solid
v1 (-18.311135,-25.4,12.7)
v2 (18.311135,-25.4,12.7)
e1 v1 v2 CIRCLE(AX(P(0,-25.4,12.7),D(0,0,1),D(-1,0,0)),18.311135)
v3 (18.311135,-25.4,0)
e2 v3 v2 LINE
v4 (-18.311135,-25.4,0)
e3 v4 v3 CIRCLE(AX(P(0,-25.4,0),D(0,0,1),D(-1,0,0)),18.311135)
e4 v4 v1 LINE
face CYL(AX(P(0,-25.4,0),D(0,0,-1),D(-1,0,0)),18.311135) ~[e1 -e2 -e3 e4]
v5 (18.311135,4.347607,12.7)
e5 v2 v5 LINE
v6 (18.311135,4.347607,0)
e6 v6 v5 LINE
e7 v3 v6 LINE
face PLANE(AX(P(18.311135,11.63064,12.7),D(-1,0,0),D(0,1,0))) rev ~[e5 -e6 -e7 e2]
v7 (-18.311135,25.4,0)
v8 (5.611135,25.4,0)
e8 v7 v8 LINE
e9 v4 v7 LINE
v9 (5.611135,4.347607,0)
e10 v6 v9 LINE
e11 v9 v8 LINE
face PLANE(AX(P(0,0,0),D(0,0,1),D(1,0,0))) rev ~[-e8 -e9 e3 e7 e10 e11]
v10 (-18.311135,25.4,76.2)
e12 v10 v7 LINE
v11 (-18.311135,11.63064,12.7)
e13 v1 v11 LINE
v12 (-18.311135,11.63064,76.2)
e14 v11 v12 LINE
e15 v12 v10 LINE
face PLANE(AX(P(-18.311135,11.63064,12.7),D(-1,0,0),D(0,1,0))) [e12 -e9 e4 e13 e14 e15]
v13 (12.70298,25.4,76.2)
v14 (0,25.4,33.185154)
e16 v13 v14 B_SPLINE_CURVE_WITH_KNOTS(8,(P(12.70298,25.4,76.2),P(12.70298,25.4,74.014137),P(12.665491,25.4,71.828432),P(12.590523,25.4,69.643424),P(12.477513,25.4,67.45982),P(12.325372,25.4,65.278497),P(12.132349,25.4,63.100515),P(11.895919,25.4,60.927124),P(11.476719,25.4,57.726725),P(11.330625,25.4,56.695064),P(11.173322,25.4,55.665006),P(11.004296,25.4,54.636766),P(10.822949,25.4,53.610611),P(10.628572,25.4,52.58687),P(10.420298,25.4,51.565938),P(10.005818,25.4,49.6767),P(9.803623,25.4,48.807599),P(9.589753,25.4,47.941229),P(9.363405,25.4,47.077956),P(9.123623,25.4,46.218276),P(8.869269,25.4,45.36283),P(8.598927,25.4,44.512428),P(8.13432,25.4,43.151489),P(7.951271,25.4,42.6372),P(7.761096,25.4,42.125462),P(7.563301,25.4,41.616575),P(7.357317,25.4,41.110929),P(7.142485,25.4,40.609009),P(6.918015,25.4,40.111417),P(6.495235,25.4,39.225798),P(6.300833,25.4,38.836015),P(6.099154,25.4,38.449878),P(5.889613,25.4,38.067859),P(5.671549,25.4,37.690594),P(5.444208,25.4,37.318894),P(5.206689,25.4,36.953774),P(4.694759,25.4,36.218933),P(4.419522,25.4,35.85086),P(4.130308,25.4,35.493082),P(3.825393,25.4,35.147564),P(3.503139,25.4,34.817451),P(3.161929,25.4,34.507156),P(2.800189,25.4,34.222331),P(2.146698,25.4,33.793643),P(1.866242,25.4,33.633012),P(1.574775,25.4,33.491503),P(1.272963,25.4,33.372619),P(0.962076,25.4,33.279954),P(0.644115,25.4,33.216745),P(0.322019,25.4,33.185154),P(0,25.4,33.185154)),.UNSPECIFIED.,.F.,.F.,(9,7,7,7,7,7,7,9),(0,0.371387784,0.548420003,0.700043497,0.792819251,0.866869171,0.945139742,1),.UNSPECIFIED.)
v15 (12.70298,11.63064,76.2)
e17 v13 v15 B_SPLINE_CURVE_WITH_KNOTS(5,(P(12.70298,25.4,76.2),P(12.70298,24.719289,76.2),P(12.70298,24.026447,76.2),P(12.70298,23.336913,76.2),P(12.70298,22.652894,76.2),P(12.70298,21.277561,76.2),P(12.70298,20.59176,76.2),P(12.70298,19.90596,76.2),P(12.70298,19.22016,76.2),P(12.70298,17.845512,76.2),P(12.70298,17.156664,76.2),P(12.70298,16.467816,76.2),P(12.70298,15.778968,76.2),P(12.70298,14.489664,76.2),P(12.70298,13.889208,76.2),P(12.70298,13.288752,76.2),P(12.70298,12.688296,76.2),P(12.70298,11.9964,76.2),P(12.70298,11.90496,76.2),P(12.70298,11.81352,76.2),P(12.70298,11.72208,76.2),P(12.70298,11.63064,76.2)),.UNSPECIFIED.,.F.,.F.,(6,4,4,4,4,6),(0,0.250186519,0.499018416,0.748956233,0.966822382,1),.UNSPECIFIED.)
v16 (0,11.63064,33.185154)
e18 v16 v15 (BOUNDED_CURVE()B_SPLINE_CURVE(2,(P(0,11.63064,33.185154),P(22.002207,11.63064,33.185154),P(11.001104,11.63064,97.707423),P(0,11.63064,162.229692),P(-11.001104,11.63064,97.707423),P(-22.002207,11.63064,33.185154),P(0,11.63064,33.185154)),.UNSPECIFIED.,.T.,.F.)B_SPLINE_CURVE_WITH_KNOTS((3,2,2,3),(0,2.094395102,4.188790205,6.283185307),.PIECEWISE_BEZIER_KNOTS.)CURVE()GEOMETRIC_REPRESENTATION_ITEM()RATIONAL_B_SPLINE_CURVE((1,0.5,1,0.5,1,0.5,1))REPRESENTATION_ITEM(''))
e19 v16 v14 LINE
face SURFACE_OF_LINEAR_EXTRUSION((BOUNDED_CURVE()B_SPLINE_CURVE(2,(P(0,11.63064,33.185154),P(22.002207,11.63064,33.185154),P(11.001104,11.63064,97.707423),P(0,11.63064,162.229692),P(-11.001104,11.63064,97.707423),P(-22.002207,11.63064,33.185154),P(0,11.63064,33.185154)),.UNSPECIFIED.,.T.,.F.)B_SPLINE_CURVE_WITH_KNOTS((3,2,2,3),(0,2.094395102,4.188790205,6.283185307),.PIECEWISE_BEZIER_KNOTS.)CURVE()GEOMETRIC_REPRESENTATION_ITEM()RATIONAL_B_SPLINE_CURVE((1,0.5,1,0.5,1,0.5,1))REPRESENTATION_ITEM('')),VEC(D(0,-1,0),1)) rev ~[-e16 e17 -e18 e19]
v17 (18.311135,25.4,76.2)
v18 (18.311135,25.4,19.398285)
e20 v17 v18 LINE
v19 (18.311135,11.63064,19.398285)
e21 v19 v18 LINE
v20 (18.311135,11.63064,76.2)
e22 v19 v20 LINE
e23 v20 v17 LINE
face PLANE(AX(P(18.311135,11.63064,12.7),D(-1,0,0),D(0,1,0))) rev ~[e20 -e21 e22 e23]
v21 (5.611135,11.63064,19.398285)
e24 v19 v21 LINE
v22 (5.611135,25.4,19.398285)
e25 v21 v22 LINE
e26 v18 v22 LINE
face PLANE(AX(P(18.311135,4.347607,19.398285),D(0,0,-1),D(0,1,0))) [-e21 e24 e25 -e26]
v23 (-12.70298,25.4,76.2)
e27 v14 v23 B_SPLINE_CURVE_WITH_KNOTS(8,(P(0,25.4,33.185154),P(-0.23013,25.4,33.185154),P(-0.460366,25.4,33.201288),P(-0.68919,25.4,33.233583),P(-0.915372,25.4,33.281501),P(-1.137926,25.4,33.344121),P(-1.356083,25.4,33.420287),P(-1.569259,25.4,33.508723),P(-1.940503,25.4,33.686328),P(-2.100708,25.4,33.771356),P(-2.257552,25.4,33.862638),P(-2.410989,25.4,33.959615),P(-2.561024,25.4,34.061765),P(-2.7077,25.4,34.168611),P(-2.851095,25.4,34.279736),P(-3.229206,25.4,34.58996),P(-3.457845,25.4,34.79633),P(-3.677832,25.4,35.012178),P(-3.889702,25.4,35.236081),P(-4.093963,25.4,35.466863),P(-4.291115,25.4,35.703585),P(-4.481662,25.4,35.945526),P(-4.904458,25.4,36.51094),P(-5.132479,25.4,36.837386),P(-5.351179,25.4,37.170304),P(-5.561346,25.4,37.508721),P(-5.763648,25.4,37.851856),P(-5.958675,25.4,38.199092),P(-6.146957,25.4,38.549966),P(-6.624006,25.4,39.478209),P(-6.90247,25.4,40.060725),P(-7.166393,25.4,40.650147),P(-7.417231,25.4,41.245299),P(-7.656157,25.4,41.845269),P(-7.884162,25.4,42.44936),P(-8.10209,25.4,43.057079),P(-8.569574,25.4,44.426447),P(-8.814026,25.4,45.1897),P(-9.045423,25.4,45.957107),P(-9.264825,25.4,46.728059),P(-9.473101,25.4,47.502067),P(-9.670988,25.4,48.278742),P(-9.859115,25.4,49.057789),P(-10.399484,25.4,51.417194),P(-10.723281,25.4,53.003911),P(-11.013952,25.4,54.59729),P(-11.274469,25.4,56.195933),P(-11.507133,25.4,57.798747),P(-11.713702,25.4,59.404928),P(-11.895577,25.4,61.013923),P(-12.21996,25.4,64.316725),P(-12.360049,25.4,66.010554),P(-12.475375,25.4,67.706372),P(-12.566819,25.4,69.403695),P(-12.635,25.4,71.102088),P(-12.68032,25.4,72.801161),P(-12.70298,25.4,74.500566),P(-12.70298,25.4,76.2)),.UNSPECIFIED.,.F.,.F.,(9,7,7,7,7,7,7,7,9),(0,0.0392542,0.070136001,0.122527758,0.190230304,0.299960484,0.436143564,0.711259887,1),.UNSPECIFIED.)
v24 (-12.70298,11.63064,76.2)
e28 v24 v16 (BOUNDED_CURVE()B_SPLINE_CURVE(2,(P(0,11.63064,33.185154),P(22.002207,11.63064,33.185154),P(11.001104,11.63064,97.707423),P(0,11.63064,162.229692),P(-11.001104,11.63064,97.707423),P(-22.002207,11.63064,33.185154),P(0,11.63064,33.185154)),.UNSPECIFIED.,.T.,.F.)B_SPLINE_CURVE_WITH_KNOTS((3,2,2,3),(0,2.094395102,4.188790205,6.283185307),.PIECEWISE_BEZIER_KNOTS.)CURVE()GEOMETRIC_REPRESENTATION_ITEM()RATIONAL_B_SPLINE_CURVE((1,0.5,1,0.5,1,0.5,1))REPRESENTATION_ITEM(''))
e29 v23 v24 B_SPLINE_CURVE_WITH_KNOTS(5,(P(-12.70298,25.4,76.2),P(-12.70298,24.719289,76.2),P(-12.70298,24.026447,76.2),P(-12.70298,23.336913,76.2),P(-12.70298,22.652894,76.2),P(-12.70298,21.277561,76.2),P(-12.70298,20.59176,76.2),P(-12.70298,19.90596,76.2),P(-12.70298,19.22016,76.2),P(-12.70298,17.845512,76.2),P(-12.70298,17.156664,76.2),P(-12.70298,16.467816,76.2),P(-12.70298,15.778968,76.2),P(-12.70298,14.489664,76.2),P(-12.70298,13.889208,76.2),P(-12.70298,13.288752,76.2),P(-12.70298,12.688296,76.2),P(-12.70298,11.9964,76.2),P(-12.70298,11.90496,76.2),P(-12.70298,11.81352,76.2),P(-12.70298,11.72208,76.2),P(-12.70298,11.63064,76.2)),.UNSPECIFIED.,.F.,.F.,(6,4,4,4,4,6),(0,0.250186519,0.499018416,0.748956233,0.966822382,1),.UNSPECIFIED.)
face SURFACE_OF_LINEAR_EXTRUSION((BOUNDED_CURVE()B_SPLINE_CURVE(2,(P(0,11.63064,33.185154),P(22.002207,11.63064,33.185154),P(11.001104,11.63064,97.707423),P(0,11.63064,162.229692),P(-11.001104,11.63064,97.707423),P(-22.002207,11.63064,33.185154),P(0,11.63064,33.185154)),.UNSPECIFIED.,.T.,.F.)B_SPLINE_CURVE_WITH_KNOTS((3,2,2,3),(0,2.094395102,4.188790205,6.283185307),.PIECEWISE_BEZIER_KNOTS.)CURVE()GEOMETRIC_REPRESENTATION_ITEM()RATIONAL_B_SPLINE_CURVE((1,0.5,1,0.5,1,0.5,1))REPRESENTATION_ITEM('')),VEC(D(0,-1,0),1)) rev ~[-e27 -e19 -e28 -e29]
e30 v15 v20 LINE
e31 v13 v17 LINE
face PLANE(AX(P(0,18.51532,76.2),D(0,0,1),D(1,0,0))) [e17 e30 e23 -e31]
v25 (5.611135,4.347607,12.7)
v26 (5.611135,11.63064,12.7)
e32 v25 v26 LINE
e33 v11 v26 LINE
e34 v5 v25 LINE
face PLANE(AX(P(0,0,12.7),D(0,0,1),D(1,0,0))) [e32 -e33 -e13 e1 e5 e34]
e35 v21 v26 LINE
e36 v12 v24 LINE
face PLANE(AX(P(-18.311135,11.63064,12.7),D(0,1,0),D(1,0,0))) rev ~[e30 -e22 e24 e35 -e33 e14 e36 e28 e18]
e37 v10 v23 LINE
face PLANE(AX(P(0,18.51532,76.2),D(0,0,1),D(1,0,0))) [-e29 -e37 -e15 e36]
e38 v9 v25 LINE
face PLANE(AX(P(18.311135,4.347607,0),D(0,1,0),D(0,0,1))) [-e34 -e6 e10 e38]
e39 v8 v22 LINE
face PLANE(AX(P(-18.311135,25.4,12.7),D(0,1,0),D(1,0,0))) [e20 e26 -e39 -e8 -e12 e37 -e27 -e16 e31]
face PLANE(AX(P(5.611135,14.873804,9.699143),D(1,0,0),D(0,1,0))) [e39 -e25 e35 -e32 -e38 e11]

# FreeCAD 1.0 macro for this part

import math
import FreeCAD as App
import Part
import Sketcher

V = App.Vector
Q = App.Units.Quantity

doc = App.newDocument("Part")
params = doc.addObject("Spreadsheet::Sheet", "Params")
for row, (alias, value) in enumerate([
    ("sketch1_height", "2 in"),
    ("pad1_length", "0.5 in"),
    ("pad2_length", "2.5 in"),
    ("pocket1_length", "0.6 in"),
    ("pocket2_length", "0.5 in"),
], start=1):
    params.set(f"A{row}", alias)
    params.set(f"B{row}", "=" + value)
    params.setAlias(f"B{row}", alias)

body = doc.addObject("PartDesign::Body", "Body")

sketch1 = body.newObject("Sketcher::SketchObject", "Sketch")
sketch1.AttachmentSupport = (doc.getObject("XY_Plane"), [""])
sketch1.MapMode = "FlatFace"
sketch1.addGeometry(Part.LineSegment(V(-18, 25, 0), V(-18, -25, 0)), False)
sketch1.addGeometry(Part.ArcOfCircle(Part.Circle(V(0, -25, 0), V(0, 0, 1), 18), math.radians(180), math.radians(360)), False)
sketch1.addGeometry(Part.LineSegment(V(18, -25, 0), V(18, 25, 0)), False)
sketch1.addGeometry(Part.LineSegment(V(18, 25, 0), V(-18, 25, 0)), False)
sketch1.addConstraint(Sketcher.Constraint("Tangent", 0, 2, 1, 1))
sketch1.addConstraint(Sketcher.Constraint("Tangent", 1, 2, 2, 1))
sketch1.addConstraint(Sketcher.Constraint("Coincident", 2, 2, 3, 1))
sketch1.addConstraint(Sketcher.Constraint("Coincident", 3, 2, 0, 1))
sketch1.addConstraint(Sketcher.Constraint("Vertical", 0))
sketch1.addConstraint(Sketcher.Constraint("Vertical", 2))
sketch1.addConstraint(Sketcher.Constraint("Horizontal", 3))
sketch1.addConstraint(Sketcher.Constraint("Symmetric", 0, 2, 2, 2, -1, 1))
sketch1.addConstraint(Sketcher.Constraint("DistanceY", 0, 2, 0, 1, Q("2 in")))
sketch1.addConstraint(Sketcher.Constraint("Radius", 1, 18.311135))
sketch1.setExpression("Constraints[8]", "Params.sketch1_height")
pad1 = body.newObject("PartDesign::Pad", "Pad")
pad1.Profile = sketch1
pad1.setExpression("Length", "Params.pad1_length")

sketch2 = body.newObject("Sketcher::SketchObject", "Sketch001")
sketch2.AttachmentSupport = (doc.getObject("XY_Plane"), [""])
sketch2.MapMode = "FlatFace"
sketch2.AttachmentOffset = App.Placement(V(0, 0, 0.5 * 25.4), App.Rotation())
sketch2.addGeometry(Part.LineSegment(V(-18, 25, 0), V(-18, 12, 0)), False)
sketch2.addGeometry(Part.LineSegment(V(-18, 12, 0), V(18, 12, 0)), False)
sketch2.addGeometry(Part.LineSegment(V(18, 12, 0), V(18, 25, 0)), False)
sketch2.addGeometry(Part.LineSegment(V(18, 25, 0), V(-18, 25, 0)), False)
sketch2.addConstraint(Sketcher.Constraint("Coincident", 0, 2, 1, 1))
sketch2.addConstraint(Sketcher.Constraint("Coincident", 1, 2, 2, 1))
sketch2.addConstraint(Sketcher.Constraint("Coincident", 2, 2, 3, 1))
sketch2.addConstraint(Sketcher.Constraint("Coincident", 3, 2, 0, 1))
sketch2.addConstraint(Sketcher.Constraint("Vertical", 0))
sketch2.addConstraint(Sketcher.Constraint("Horizontal", 1))
sketch2.addConstraint(Sketcher.Constraint("Vertical", 2))
sketch2.addConstraint(Sketcher.Constraint("Horizontal", 3))
sketch2.addConstraint(Sketcher.Constraint("DistanceY", -1, 1, 2, 2, Q("1 in")))
sketch2.addConstraint(Sketcher.Constraint("DistanceX", 1, 1, 1, 2, 36.62227))
sketch2.addConstraint(Sketcher.Constraint("DistanceY", 0, 2, 0, 1, 13.76936))
sketch2.addConstraint(Sketcher.Constraint("DistanceX", 0, 2, -1, 1, 18.311135))
pad2 = body.newObject("PartDesign::Pad", "Pad001")
pad2.Profile = sketch2
pad2.setExpression("Length", "Params.pad2_length")

sketch3 = body.newObject("Sketcher::SketchObject", "Sketch002")
sketch3.AttachmentSupport = (doc.getObject("XZ_Plane"), [""])
sketch3.MapMode = "FlatFace"
sketch3.AttachmentOffset = App.Placement(V(0, 0, -11.63064), App.Rotation())
sketch3.addGeometry(Part.BSplineCurve([V(0, 33.185154, 0), V(22.002207, 33.185154, 0), V(11.001104, 97.707423, 0), V(0, 162.229692, 0), V(-11.001104, 97.707423, 0), V(-22.002207, 33.185154, 0), V(0, 33.185154, 0)], [3, 2, 2, 3], [0, 2.094395102, 4.188790205, 6.283185307], False, 2, [1, 0.5, 1, 0.5, 1, 0.5, 1], False), False)
sketch3.addConstraint(Sketcher.Constraint("Block", 0))
pocket1 = body.newObject("PartDesign::Pocket", "Pocket")
pocket1.Profile = sketch3
pocket1.setExpression("Length", "Params.pocket1_length")

sketch4 = body.newObject("Sketcher::SketchObject", "Sketch003")
sketch4.AttachmentSupport = (doc.getObject("YZ_Plane"), [""])
sketch4.MapMode = "FlatFace"
sketch4.AttachmentOffset = App.Placement(V(0, 0, 18.311135), App.Rotation())
sketch4.addGeometry(Part.LineSegment(V(4, 19, 0), V(4, 0, 0)), False)
sketch4.addGeometry(Part.LineSegment(V(4, 0, 0), V(25, 0, 0)), False)
sketch4.addGeometry(Part.LineSegment(V(25, 0, 0), V(25, 19, 0)), False)
sketch4.addGeometry(Part.LineSegment(V(25, 19, 0), V(4, 19, 0)), False)
sketch4.addConstraint(Sketcher.Constraint("Coincident", 0, 2, 1, 1))
sketch4.addConstraint(Sketcher.Constraint("Coincident", 1, 2, 2, 1))
sketch4.addConstraint(Sketcher.Constraint("Coincident", 2, 2, 3, 1))
sketch4.addConstraint(Sketcher.Constraint("Coincident", 3, 2, 0, 1))
sketch4.addConstraint(Sketcher.Constraint("Vertical", 0))
sketch4.addConstraint(Sketcher.Constraint("Horizontal", 1))
sketch4.addConstraint(Sketcher.Constraint("Vertical", 2))
sketch4.addConstraint(Sketcher.Constraint("Horizontal", 3))
sketch4.addConstraint(Sketcher.Constraint("PointOnObject", 0, 2, -1))
sketch4.addConstraint(Sketcher.Constraint("DistanceX", -1, 1, 1, 2, Q("1 in")))
sketch4.addConstraint(Sketcher.Constraint("DistanceX", 1, 1, 1, 2, 21.052393))
sketch4.addConstraint(Sketcher.Constraint("DistanceY", 0, 2, 0, 1, 19.398285))
pocket2 = body.newObject("PartDesign::Pocket", "Pocket001")
pocket2.Profile = sketch4
pocket2.setExpression("Length", "Params.pocket2_length")

doc.recompute()
